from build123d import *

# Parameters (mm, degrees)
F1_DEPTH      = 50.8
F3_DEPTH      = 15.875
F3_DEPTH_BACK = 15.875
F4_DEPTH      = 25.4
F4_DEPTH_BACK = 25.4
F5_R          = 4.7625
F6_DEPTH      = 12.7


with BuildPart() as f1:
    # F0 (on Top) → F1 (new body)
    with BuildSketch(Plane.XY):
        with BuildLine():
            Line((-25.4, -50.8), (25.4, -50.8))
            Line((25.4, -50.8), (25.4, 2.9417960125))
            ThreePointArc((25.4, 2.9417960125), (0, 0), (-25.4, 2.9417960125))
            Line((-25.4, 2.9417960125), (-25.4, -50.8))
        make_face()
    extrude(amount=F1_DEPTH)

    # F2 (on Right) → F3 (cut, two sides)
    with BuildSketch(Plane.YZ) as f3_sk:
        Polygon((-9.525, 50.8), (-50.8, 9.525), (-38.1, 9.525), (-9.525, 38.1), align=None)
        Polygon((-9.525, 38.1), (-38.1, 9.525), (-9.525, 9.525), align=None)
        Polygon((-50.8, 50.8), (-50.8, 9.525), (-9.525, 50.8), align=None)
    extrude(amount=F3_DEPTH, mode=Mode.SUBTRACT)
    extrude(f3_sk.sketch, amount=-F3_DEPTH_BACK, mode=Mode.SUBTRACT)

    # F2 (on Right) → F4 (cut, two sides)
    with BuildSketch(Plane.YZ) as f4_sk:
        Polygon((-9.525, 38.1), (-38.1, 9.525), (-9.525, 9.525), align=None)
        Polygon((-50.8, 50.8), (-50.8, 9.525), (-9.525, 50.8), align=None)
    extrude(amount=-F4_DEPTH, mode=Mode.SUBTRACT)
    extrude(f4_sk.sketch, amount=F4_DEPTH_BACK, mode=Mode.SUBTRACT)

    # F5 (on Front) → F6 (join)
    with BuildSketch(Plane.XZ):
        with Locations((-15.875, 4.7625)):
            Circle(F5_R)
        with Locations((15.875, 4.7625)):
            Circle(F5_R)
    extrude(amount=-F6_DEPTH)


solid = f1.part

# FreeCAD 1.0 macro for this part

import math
import FreeCAD as App
import Part
import Sketcher

V = App.Vector
Q = App.Units.Quantity

doc = App.newDocument("Part")
body = doc.addObject("PartDesign::Body", "Body")

sketch1 = body.newObject("Sketcher::SketchObject", "Sketch")
sketch1.AttachmentSupport = (doc.getObject("XY_Plane"), [""])
sketch1.MapMode = "FlatFace"
sketch1.addGeometry([
    Part.LineSegment(V(-25, -51, 0), V(25, -51, 0)),
    Part.LineSegment(V(25, -51, 0), V(25, 3, 0)),
    Part.ArcOfCircle(Part.Circle(V(0, 111, 0), V(0, 0, 1), 111), math.radians(-103), math.radians(-77)),
    Part.LineSegment(V(-25, 3, 0), V(-25, -51, 0)),
], False)
sketch1.addConstraint([
    Sketcher.Constraint("Coincident", 0, 2, 1, 1),
    Sketcher.Constraint("Coincident", 1, 2, 2, 2),
    Sketcher.Constraint("Coincident", 2, 1, 3, 1),
    Sketcher.Constraint("Coincident", 3, 2, 0, 1),
    Sketcher.Constraint("Horizontal", 0),
    Sketcher.Constraint("Vertical", 1),
    Sketcher.Constraint("Vertical", 3),
    Sketcher.Constraint("Symmetric", 1, 2, 2, 1, -2),
    Sketcher.Constraint("DistanceX", 0, 1, 0, 2, Q("2 in")),
    Sketcher.Constraint("DistanceY", 0, 2, -1, 1, Q("2 in")),
    Sketcher.Constraint("Radius", 2, Q("4.375 in")),
    Sketcher.Constraint("DistanceY", -1, 1, 2, 3, Q("4.375 in")),
])
pad1 = body.newObject("PartDesign::Pad", "Pad")
pad1.Profile = sketch1
pad1.Length = Q("2 in")

sketch2 = body.newObject("Sketcher::SketchObject", "Sketch001")
sketch2.AttachmentSupport = (doc.getObject("YZ_Plane"), [""])
sketch2.MapMode = "FlatFace"
sketch2.addGeometry([
    Part.LineSegment(V(-51, 10, 0), V(-10, 10, 0)),
    Part.LineSegment(V(-10, 10, 0), V(-10, 51, 0)),
    Part.LineSegment(V(-10, 51, 0), V(-51, 51, 0)),
    Part.LineSegment(V(-51, 51, 0), V(-51, 10, 0)),
], False)
sketch2.addConstraint([
    Sketcher.Constraint("Coincident", 0, 2, 1, 1),
    Sketcher.Constraint("Coincident", 1, 2, 2, 1),
    Sketcher.Constraint("Coincident", 2, 2, 3, 1),
    Sketcher.Constraint("Coincident", 3, 2, 0, 1),
    Sketcher.Constraint("Horizontal", 0),
    Sketcher.Constraint("Vertical", 1),
    Sketcher.Constraint("Horizontal", 2),
    Sketcher.Constraint("Vertical", 3),
    Sketcher.Constraint("Equal", 2, 1),
    Sketcher.Constraint("DistanceY", -1, 1, 1, 2, Q("2 in")),
    Sketcher.Constraint("DistanceX", 2, 2, -1, 1, Q("2 in")),
    Sketcher.Constraint("DistanceX", 0, 1, 0, 2, Q("1.625 in")),
])
pocket1 = body.newObject("PartDesign::Pocket", "Pocket")
pocket1.Profile = sketch2
pocket1.Type = "TwoLengths"
pocket1.Length = Q("0.625 in")
pocket1.Length2 = Q("0.625 in")
pocket1.Reversed = True

sketch3 = body.newObject("Sketcher::SketchObject", "Sketch002")
sketch3.AttachmentSupport = (doc.getObject("YZ_Plane"), [""])
sketch3.MapMode = "FlatFace"
sketch3.addGeometry([
    Part.LineSegment(V(-10, 38, 0), V(-38, 10, 0)),
    Part.LineSegment(V(-38, 10, 0), V(-10, 10, 0)),
    Part.LineSegment(V(-10, 10, 0), V(-10, 38, 0)),
    Part.LineSegment(V(-51, 51, 0), V(-51, 10, 0)),
    Part.LineSegment(V(-51, 10, 0), V(-10, 51, 0)),
    Part.LineSegment(V(-10, 51, 0), V(-51, 51, 0)),
], False)
sketch3.addConstraint([
    Sketcher.Constraint("Coincident", 0, 2, 1, 1),
    Sketcher.Constraint("Coincident", 1, 2, 2, 1),
    Sketcher.Constraint("Coincident", 2, 2, 0, 1),
    Sketcher.Constraint("Coincident", 3, 2, 4, 1),
    Sketcher.Constraint("Coincident", 4, 2, 5, 1),
    Sketcher.Constraint("Coincident", 5, 2, 3, 1),
    Sketcher.Constraint("Horizontal", 1),
    Sketcher.Constraint("Vertical", 2),
    Sketcher.Constraint("Vertical", 3),
    Sketcher.Constraint("Horizontal", 5),
    Sketcher.Constraint("Parallel", 0, 4),
    Sketcher.Constraint("Horizontal", 1, 2, 3, 2),
    Sketcher.Constraint("Vertical", 2, 2, 4, 2),
    Sketcher.Constraint("Equal", 1, 2),
    Sketcher.Constraint("DistanceX", 3, 2, -1, 1, Q("2 in")),
    Sketcher.Constraint("DistanceY", -1, 1, 4, 2, Q("2 in")),
    Sketcher.Constraint("DistanceX", 0, 2, -1, 1, Q("1.5 in")),
    Sketcher.Constraint("DistanceX", 1, 1, 1, 2, Q("1.125 in")),
])
pocket2 = body.newObject("PartDesign::Pocket", "Pocket001")
pocket2.Profile = sketch3
pocket2.Type = "ThroughAll"
pocket2.Midplane = True

sketch4 = body.newObject("Sketcher::SketchObject", "Sketch003")
sketch4.AttachmentSupport = (doc.getObject("XZ_Plane"), [""])
sketch4.MapMode = "FlatFace"
sketch4.addGeometry([
    Part.Circle(V(-15.9, 4.8, 0), V(0, 0, 1), 4.8),
    Part.Circle(V(15.9, 4.8, 0), V(0, 0, 1), 4.8),
], False)
sketch4.addConstraint([
    Sketcher.Constraint("Equal", 0, 1),
    Sketcher.Constraint("Symmetric", 0, 3, 1, 3, -2),
    Sketcher.Constraint("Diameter", 0, Q("0.375 in")),
    Sketcher.Constraint("DistanceX", 0, 3, 1, 3, Q("1.25 in")),
    Sketcher.Constraint("DistanceY", -1, 1, 0, 3, Q("0.1875 in")),
])
pad2 = body.newObject("PartDesign::Pad", "Pad001")
pad2.Profile = sketch4
pad2.Length = Q("0.5 in")
pad2.Reversed = True

doc.recompute()
